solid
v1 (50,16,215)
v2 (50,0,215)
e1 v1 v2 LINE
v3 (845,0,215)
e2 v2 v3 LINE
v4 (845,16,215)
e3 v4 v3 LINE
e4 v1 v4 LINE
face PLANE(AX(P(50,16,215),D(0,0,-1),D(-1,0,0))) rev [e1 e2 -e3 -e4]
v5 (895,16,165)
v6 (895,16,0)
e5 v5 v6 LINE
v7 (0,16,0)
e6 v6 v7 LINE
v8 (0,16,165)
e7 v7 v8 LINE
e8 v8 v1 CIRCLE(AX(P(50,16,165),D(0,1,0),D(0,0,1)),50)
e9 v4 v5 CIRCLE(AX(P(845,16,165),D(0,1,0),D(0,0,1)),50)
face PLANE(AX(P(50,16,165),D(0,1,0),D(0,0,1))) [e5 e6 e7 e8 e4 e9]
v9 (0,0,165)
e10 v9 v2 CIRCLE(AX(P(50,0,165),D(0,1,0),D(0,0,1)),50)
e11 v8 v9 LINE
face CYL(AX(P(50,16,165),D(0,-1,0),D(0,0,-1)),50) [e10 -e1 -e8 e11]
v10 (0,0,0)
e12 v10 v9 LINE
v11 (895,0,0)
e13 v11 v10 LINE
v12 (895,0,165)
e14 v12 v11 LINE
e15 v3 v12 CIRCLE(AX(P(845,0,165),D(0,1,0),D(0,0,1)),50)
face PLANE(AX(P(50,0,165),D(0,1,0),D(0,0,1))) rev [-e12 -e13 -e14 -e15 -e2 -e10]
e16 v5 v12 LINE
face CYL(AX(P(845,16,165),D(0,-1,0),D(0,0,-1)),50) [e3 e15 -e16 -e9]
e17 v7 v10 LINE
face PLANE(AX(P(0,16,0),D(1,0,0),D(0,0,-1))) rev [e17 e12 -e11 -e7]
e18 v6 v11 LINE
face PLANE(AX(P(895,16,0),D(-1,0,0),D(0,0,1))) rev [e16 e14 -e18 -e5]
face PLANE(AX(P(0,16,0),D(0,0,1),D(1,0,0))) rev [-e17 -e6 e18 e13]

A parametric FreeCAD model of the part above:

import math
import FreeCAD as App
import Part
import Sketcher
from FreeCAD import Vector

doc = App.newDocument("Part")
body = doc.addObject("PartDesign::Body", "Body")

# Sketch on XZ plane
sketch1 = body.newObject("Sketcher::SketchObject", "Sketch")
sketch1.AttachmentSupport = (doc.getObject("XZ_Plane"), [""])
sketch1.MapMode = "FlatFace"
sketch1.addGeometry([
    Part.LineSegment(Vector(895, 0, 0), Vector(0, 0, 0)),  # 0
    Part.LineSegment(Vector(0, 0, 0), Vector(0, 165, 0)),  # 1
    Part.ArcOfCircle(Part.Circle(Vector(50, 165, 0), Vector(0, 0, 1), 50), math.radians(90), math.radians(180)),  # 2
    Part.LineSegment(Vector(50, 215, 0), Vector(845, 215, 0)),  # 3
    Part.ArcOfCircle(Part.Circle(Vector(845, 165, 0), Vector(0, 0, 1), 50), math.radians(0), math.radians(90)),  # 4
    Part.LineSegment(Vector(895, 165, 0), Vector(895, 0, 0)),  # 5
], False)
sketch1.addConstraint([
    Sketcher.Constraint("Coincident", 0, 2, 1, 1),
    Sketcher.Constraint("Tangent", 1, 2, 2, 2),
    Sketcher.Constraint("Tangent", 2, 1, 3, 1),
    Sketcher.Constraint("Tangent", 3, 2, 4, 2),
    Sketcher.Constraint("Tangent", 4, 1, 5, 1),
    Sketcher.Constraint("Coincident", 5, 2, 0, 1),
    Sketcher.Constraint("Horizontal", 0),
    Sketcher.Constraint("Vertical", 1),
    Sketcher.Constraint("Horizontal", 3),
    Sketcher.Constraint("Vertical", 5),
    Sketcher.Constraint("Coincident", 0, 2, -1, 1),
    Sketcher.Constraint("Equal", 2, 4),
    Sketcher.Constraint("Radius", 2, 50.0),
    Sketcher.Constraint("DistanceX", 0, 2, 0, 1, 895.0),
    Sketcher.Constraint("DistanceY", 1, 1, 1, 2, 165.0),
])
pad1 = body.newObject("PartDesign::Pad", "Pad")
pad1.Profile = sketch1
pad1.Length = 16
pad1.Reversed = True

doc.recompute()
